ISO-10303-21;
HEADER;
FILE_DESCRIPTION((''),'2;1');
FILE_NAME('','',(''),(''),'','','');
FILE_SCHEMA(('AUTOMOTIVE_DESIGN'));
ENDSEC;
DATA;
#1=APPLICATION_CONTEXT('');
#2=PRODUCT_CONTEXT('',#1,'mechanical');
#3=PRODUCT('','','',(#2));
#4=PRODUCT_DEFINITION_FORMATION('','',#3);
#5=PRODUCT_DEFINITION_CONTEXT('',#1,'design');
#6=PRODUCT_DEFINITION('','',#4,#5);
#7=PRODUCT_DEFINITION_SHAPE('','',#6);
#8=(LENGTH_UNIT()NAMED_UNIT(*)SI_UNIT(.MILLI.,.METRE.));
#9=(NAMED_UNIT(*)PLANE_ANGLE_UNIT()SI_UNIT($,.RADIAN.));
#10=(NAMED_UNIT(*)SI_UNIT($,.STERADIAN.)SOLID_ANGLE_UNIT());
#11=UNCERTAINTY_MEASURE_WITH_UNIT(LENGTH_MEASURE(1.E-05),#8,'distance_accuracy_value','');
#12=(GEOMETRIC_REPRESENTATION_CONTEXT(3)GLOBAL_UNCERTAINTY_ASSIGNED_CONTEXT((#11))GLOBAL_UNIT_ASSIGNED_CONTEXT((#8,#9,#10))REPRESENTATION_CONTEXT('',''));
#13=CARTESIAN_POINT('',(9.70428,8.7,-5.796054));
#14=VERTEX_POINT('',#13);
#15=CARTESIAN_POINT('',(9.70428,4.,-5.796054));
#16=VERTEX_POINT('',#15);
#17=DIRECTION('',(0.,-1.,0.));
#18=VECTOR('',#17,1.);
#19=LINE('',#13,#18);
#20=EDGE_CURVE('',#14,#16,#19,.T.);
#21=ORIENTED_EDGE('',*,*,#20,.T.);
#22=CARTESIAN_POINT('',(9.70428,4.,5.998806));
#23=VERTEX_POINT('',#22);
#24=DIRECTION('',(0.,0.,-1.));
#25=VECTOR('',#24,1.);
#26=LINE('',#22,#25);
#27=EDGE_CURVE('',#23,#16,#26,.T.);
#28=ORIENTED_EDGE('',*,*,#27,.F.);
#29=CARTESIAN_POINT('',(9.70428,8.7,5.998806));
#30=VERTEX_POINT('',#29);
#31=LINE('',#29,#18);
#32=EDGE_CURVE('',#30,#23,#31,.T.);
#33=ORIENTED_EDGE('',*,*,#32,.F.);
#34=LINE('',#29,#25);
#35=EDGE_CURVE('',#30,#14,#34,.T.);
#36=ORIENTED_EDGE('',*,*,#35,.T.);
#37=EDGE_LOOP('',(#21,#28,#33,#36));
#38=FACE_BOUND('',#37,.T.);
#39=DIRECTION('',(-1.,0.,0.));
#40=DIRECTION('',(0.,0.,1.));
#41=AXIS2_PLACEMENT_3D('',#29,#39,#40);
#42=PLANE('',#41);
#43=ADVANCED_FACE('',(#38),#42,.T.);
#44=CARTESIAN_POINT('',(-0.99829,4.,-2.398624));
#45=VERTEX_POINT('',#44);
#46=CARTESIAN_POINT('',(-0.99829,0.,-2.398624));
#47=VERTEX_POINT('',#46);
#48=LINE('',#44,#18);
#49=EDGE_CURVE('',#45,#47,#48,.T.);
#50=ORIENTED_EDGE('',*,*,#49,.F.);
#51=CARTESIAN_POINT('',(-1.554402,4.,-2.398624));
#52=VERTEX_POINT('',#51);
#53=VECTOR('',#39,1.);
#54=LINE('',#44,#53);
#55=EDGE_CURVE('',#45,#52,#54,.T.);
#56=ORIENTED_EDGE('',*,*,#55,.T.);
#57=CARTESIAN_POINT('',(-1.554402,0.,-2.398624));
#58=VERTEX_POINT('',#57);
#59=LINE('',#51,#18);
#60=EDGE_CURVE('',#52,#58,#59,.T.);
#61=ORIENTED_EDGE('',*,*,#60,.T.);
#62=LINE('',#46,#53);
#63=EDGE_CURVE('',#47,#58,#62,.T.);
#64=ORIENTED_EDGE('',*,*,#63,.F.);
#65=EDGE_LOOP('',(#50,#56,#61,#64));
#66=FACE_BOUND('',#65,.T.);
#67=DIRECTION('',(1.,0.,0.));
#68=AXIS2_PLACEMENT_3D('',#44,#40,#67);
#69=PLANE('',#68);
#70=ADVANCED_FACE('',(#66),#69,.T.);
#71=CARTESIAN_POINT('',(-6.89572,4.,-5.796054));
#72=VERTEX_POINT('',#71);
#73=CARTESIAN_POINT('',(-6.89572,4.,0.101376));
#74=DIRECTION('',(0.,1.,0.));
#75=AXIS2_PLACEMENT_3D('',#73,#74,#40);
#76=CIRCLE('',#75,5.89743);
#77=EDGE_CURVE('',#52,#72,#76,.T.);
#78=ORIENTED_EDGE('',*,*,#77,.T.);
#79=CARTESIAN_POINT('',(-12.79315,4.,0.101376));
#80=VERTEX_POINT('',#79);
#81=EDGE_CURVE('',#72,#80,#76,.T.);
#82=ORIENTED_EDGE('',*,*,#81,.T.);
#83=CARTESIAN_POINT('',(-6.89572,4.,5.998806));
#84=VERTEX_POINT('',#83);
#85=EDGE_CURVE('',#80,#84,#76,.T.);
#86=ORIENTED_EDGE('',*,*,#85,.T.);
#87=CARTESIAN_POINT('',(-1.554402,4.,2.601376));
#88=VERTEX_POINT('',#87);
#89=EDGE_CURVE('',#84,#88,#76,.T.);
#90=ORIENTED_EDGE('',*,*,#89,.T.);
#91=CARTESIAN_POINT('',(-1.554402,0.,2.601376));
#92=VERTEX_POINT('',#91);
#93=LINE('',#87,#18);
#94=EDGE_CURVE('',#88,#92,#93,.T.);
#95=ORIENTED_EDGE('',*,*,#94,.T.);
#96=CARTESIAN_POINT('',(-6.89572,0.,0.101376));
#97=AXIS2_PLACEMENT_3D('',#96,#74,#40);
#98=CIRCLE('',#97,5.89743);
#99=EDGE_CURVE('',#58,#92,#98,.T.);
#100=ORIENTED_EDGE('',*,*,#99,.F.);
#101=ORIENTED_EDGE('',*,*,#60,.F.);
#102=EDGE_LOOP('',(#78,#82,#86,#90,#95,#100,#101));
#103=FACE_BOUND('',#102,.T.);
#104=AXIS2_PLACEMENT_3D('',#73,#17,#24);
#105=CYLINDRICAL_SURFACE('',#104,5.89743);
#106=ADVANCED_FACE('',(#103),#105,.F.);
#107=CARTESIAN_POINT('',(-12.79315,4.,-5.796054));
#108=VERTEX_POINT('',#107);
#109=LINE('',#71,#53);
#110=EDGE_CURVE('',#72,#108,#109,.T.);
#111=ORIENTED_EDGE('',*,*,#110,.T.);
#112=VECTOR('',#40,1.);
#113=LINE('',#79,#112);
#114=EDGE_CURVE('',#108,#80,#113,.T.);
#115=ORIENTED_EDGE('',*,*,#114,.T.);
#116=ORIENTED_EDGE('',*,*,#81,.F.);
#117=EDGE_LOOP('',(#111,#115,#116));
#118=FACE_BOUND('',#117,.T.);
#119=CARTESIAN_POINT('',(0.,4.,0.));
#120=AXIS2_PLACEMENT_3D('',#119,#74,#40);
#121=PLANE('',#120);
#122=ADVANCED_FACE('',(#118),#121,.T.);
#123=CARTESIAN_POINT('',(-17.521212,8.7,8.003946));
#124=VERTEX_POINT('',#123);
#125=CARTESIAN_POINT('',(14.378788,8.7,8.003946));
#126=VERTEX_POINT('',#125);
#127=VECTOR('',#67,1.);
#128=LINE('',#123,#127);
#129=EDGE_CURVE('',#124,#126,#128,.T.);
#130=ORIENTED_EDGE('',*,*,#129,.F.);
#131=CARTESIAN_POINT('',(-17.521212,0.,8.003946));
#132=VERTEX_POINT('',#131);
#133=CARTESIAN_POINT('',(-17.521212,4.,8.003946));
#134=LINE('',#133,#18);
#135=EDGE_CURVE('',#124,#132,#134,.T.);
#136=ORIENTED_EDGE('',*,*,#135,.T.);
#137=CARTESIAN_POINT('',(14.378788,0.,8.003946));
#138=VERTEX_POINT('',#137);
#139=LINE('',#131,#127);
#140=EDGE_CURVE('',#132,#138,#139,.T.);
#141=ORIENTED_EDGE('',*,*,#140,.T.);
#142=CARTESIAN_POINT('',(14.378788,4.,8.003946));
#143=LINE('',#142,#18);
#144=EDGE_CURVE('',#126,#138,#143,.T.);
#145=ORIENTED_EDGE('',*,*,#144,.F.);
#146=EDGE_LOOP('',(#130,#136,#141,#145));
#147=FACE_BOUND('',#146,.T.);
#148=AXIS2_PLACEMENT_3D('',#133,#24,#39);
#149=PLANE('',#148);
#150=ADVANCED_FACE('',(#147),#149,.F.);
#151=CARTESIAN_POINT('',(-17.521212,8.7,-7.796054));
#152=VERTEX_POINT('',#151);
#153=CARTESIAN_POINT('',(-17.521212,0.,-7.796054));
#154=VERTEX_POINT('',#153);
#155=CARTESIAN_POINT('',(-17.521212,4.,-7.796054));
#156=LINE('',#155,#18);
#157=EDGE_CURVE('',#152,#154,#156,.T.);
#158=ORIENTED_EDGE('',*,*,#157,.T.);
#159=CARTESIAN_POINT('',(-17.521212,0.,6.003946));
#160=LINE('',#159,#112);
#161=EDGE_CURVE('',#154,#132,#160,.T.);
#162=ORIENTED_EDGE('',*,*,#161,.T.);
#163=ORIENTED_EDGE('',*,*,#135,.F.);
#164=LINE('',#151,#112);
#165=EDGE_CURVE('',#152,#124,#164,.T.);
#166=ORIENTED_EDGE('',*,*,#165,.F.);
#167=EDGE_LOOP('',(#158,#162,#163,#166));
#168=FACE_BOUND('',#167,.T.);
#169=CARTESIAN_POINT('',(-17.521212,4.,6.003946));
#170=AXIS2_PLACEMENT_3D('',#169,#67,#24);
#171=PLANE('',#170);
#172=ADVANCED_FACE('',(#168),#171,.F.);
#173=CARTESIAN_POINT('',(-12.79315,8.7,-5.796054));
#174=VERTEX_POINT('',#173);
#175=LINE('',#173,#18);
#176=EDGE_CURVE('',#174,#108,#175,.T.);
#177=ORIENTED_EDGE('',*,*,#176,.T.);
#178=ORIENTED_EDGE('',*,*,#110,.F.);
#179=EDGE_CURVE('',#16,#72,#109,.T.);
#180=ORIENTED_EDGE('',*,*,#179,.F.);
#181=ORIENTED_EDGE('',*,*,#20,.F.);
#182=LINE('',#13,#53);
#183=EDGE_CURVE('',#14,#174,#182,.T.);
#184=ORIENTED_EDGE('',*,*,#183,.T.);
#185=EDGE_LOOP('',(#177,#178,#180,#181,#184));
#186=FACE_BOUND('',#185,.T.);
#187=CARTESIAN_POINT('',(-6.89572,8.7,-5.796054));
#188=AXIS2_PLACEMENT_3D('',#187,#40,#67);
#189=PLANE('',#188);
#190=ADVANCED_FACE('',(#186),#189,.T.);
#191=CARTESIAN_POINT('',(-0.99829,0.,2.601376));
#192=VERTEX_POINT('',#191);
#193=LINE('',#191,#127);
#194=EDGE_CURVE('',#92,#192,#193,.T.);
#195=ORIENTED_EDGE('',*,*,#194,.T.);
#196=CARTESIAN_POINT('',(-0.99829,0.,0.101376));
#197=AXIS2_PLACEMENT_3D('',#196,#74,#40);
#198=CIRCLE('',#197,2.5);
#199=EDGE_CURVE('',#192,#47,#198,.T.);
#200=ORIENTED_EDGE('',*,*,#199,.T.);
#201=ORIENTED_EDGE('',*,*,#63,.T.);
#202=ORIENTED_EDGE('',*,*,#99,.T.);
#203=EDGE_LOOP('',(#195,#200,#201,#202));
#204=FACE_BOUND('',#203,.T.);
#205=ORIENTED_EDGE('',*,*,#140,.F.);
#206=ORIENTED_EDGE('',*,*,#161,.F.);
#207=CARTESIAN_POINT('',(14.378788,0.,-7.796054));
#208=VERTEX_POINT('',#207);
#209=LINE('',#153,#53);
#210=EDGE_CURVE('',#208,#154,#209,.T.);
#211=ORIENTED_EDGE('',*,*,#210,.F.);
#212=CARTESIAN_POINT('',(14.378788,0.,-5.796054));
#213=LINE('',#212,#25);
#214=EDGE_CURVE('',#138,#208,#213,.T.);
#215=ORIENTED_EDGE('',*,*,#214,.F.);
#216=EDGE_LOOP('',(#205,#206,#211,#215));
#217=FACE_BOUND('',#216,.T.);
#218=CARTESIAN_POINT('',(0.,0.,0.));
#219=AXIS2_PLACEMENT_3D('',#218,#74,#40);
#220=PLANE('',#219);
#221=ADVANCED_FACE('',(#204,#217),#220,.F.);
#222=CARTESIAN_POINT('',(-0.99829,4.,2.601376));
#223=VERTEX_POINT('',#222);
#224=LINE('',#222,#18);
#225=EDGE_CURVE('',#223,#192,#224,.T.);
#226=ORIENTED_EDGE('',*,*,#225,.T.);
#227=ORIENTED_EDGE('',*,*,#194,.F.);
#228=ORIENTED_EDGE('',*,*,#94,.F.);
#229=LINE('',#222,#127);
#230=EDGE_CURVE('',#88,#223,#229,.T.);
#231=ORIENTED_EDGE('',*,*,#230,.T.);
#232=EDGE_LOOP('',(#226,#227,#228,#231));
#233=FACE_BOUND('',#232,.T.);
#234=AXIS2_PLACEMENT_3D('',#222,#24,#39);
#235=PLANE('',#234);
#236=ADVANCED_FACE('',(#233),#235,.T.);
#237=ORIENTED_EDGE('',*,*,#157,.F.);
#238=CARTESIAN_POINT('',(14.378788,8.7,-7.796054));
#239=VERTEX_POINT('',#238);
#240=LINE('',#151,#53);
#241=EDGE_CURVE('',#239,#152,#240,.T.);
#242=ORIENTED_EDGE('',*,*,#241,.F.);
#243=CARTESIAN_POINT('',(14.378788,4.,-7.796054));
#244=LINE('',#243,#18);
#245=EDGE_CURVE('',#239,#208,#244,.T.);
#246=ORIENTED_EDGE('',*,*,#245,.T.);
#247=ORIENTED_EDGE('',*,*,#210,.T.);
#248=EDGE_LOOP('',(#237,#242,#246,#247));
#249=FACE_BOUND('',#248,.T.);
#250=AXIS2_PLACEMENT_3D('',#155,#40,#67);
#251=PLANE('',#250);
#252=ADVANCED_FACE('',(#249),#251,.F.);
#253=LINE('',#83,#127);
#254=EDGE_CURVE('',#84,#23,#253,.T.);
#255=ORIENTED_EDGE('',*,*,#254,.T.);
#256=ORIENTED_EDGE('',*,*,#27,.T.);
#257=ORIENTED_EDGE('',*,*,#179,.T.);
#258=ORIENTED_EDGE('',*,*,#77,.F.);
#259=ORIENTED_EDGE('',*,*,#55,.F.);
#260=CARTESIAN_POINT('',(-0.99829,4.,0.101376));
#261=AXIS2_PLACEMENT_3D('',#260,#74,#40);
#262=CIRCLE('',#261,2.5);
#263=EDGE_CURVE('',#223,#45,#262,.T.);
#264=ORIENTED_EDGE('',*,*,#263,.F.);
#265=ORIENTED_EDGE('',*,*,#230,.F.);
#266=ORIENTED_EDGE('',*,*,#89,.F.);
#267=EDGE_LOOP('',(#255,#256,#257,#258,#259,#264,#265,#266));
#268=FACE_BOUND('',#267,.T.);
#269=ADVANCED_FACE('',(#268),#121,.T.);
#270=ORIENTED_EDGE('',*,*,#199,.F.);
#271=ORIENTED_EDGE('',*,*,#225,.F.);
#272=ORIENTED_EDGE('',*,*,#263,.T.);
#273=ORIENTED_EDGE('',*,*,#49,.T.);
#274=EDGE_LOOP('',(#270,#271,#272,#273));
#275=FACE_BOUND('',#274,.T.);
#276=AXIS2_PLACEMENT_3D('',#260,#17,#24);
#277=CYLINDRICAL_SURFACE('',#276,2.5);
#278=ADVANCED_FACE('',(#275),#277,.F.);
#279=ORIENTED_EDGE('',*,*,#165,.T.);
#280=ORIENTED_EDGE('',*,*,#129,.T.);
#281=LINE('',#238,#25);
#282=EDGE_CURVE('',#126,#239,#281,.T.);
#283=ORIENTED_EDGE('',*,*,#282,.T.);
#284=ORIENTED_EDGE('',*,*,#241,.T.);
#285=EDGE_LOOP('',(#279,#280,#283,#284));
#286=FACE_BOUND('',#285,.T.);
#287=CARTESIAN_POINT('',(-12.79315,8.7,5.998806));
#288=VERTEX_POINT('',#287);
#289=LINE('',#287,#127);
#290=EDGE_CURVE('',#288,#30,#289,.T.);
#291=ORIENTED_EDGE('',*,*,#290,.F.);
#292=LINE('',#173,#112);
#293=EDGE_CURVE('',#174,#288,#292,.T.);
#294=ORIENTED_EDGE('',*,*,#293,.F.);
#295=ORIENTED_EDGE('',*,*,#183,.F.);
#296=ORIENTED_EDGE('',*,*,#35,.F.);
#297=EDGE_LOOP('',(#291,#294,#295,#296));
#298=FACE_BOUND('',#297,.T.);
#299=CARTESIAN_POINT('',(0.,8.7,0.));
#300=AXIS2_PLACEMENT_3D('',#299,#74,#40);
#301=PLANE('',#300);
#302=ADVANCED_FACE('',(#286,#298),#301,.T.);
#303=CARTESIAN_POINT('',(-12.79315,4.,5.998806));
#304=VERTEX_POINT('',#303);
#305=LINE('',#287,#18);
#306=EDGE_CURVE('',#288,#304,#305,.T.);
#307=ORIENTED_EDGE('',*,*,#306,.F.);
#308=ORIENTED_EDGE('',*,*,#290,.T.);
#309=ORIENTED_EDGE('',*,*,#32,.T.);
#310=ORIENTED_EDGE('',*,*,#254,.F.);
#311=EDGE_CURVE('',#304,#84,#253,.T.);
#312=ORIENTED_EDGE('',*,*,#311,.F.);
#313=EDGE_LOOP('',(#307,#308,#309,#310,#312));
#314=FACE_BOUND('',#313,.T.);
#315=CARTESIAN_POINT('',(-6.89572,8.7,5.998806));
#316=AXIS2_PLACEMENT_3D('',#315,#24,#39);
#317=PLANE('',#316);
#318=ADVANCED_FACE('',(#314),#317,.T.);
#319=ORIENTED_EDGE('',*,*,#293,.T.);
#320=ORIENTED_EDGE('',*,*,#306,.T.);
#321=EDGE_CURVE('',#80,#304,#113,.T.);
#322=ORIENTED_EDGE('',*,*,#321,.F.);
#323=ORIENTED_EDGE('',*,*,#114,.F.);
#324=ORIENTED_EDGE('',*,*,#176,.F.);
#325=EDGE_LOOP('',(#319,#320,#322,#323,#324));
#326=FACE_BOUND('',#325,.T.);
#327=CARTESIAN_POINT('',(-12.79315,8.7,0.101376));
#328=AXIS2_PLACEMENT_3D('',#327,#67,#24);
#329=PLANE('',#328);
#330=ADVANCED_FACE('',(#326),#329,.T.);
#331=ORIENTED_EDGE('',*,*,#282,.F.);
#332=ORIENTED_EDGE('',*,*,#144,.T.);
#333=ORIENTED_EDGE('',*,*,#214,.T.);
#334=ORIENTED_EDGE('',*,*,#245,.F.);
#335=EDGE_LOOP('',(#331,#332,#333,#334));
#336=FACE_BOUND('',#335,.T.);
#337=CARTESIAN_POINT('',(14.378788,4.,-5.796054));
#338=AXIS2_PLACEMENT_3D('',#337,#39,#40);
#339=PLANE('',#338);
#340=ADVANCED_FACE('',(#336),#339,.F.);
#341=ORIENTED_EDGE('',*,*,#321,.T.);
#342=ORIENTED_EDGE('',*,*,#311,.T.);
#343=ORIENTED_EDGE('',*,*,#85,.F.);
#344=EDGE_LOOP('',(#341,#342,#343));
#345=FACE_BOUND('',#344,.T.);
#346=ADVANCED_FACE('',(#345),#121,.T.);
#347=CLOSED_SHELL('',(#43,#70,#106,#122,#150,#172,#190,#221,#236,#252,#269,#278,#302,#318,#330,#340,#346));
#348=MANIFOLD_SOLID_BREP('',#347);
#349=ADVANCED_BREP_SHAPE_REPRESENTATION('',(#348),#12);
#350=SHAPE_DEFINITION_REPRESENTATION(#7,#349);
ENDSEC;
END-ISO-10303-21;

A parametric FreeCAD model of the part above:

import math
import FreeCAD as App
import Part
import Sketcher
from FreeCAD import Vector
Q = App.Units.Quantity


def add_polygon(sketch, points):
    """Adds a closed chain of lines whose ends are joined by coincident constraints."""
    first, n = sketch.GeometryCount, len(points)
    for a, b in zip(points, points[1:] + points[:1]):
        sketch.addGeometry(Part.LineSegment(App.Vector(*a, 0), App.Vector(*b, 0)), False)
    for i in range(n):
        sketch.addConstraint(Sketcher.Constraint("Coincident", first + i, 2, first + (i + 1) % n, 1))

doc = App.newDocument("Part")
params = doc.addObject("Spreadsheet::Sheet", "Params")
for row, (alias, value) in enumerate([
    ("sketch1_radius", "2.5 mm"),
    ("sketch1_width", "31.9 mm"),
    ("sketch1_height", "15.8 mm"),
    ("pad1_length", "4 mm"),
    ("sketch2_width", "31.9 mm"),
    ("sketch2_height", "15.8 mm"),
    ("pad2_length", "4.7 mm"),
], start=1):
    params.set(f"A{row}", alias)
    params.set(f"B{row}", "=" + value)
    params.setAlias(f"B{row}", alias)

body = doc.addObject("PartDesign::Body", "Body")

sketch1 = body.newObject("Sketcher::SketchObject", "Sketch")
sketch1.AttachmentSupport = (doc.getObject("XZ_Plane"), [""])
sketch1.MapMode = "FlatFace"
add_polygon(sketch1, [(-17.5, 8), (14.4, 8), (14.4, -7.8), (-17.5, -7.8)])
sketch1.addGeometry(Part.ArcOfCircle(Part.Circle(Vector(-1, 0.1, 0), Vector(0, 0, 1), 2.5), math.radians(-90), math.radians(90)), False)
sketch1.addGeometry(Part.LineSegment(Vector(-1, 2.6, 0), Vector(-1.6, 2.6, 0)), False)
sketch1.addGeometry(Part.ArcOfCircle(Part.Circle(Vector(-6.9, 0.1, 0), Vector(0, 0, 1), 5.9), math.radians(25), math.radians(335)), False)
sketch1.addGeometry(Part.LineSegment(Vector(-1.6, -2.4, 0), Vector(-1, -2.4, 0)), False)
sketch1.addConstraint(Sketcher.Constraint("Tangent", 4, 2, 5, 1))
sketch1.addConstraint(Sketcher.Constraint("Coincident", 5, 2, 6, 1))
sketch1.addConstraint(Sketcher.Constraint("Coincident", 6, 2, 7, 1))
sketch1.addConstraint(Sketcher.Constraint("Tangent", 7, 2, 4, 1))
sketch1.addConstraint(Sketcher.Constraint("Horizontal", 0))
sketch1.addConstraint(Sketcher.Constraint("Vertical", 1))
sketch1.addConstraint(Sketcher.Constraint("Horizontal", 2))
sketch1.addConstraint(Sketcher.Constraint("Vertical", 3))
sketch1.addConstraint(Sketcher.Constraint("Horizontal", 5))
sketch1.addConstraint(Sketcher.Constraint("Horizontal", 7))
sketch1.addConstraint(Sketcher.Constraint("Horizontal", 4, 3, 6, 3))
sketch1.addConstraint(Sketcher.Constraint("Radius", 4, Q("2.5 mm")))
sketch1.addConstraint(Sketcher.Constraint("DistanceX", 0, 1, 0, 2, Q("31.9 mm")))
sketch1.addConstraint(Sketcher.Constraint("DistanceY", 1, 2, 1, 1, Q("15.8 mm")))
sketch1.addConstraint(Sketcher.Constraint("Radius", 6, Q("5.89743 mm")))
sketch1.addConstraint(Sketcher.Constraint("DistanceX", 5, 2, 5, 1, Q("0.556112 mm")))
sketch1.addConstraint(Sketcher.Constraint("DistanceX", 5, 2, -1, 1, Q("1.554402 mm")))
sketch1.addConstraint(Sketcher.Constraint("DistanceY", 4, 3, 0, 2, Q("7.90257 mm")))
sketch1.addConstraint(Sketcher.Constraint("DistanceX", 5, 2, 0, 2, Q("15.933189 mm")))
sketch1.addConstraint(Sketcher.Constraint("DistanceY", -1, 1, 4, 3, Q("0.101376 mm")))
sketch1.setExpression("Constraints[15]", "Params.sketch1_radius")
sketch1.setExpression("Constraints[16]", "Params.sketch1_width")
sketch1.setExpression("Constraints[17]", "Params.sketch1_height")
pad1 = body.newObject("PartDesign::Pad", "Pad")
pad1.Profile = sketch1
pad1.setExpression("Length", "Params.pad1_length")
pad1.Reversed = True

sketch2 = body.newObject("Sketcher::SketchObject", "Sketch001")
sketch2.AttachmentSupport = (doc.getObject("XZ_Plane"), [""])
sketch2.MapMode = "FlatFace"
sketch2.AttachmentOffset = App.Placement(Vector(0, 0, -4), App.Rotation())
add_polygon(sketch2, [(-18, -8), (-18, 8), (14, 8), (14, -8)])
add_polygon(sketch2, [(-13, -6), (10, -6), (10, 6), (-13, 6)])
sketch2.addConstraint(Sketcher.Constraint("Vertical", 0))
sketch2.addConstraint(Sketcher.Constraint("Horizontal", 1))
sketch2.addConstraint(Sketcher.Constraint("Vertical", 2))
sketch2.addConstraint(Sketcher.Constraint("Horizontal", 3))
sketch2.addConstraint(Sketcher.Constraint("Horizontal", 4))
sketch2.addConstraint(Sketcher.Constraint("Vertical", 5))
sketch2.addConstraint(Sketcher.Constraint("Horizontal", 6))
sketch2.addConstraint(Sketcher.Constraint("Vertical", 7))
sketch2.addConstraint(Sketcher.Constraint("DistanceX", 1, 1, 1, 2, Q("31.9 mm")))
sketch2.addConstraint(Sketcher.Constraint("DistanceY", 0, 1, 0, 2, Q("15.8 mm")))
sketch2.addConstraint(Sketcher.Constraint("DistanceY", 2, 2, 4, 2, Q("2 mm")))
sketch2.addConstraint(Sketcher.Constraint("DistanceX", 4, 1, 4, 2, Q("22.49743 mm")))
sketch2.addConstraint(Sketcher.Constraint("DistanceY", 5, 1, 5, 2, Q("11.79486 mm")))
sketch2.addConstraint(Sketcher.Constraint("DistanceX", -1, 1, 4, 2, Q("9.70428 mm")))
sketch2.addConstraint(Sketcher.Constraint("DistanceX", 0, 2, 6, 2, Q("4.728062 mm")))
sketch2.addConstraint(Sketcher.Constraint("DistanceY", -1, 1, 0, 2, Q("8.003946 mm")))
sketch2.setExpression("Constraints[16]", "Params.sketch2_width")
sketch2.setExpression("Constraints[17]", "Params.sketch2_height")
pad2 = body.newObject("PartDesign::Pad", "Pad001")
pad2.Profile = sketch2
pad2.setExpression("Length", "Params.pad2_length")
pad2.Reversed = True

doc.recompute()
